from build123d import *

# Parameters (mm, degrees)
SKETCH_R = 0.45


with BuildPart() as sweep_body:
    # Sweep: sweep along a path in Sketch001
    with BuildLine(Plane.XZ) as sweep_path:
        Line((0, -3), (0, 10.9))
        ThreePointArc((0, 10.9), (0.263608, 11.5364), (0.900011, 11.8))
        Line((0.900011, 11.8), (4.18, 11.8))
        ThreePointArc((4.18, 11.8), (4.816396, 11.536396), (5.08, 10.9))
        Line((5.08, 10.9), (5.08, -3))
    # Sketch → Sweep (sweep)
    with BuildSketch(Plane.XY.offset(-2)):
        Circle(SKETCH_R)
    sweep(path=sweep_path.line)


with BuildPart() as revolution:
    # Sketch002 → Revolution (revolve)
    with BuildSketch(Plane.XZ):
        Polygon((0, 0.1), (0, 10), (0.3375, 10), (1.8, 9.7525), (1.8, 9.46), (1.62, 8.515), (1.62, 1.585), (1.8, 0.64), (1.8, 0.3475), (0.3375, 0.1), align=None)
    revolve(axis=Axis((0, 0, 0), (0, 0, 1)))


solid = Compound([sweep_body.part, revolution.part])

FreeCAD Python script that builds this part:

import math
import FreeCAD as App
import Part
import Sketcher
from FreeCAD import Vector


def add_polygon(sketch, points):
    """Adds a closed chain of lines whose ends are joined by coincident constraints."""
    first, n = sketch.GeometryCount, len(points)
    for a, b in zip(points, points[1:] + points[:1]):
        sketch.addGeometry(Part.LineSegment(App.Vector(*a, 0), App.Vector(*b, 0)), False)
    for i in range(n):
        sketch.addConstraint(Sketcher.Constraint("Coincident", first + i, 2, first + (i + 1) % n, 1))

doc = App.newDocument("Part")
body = doc.addObject("PartDesign::Body", "Body")

# Sketch on XY plane
sketch1 = body.newObject("Sketcher::SketchObject", "Sketch")
sketch1.AttachmentSupport = (doc.getObject("XY_Plane"), [""])
sketch1.MapMode = "FlatFace"
sketch1.AttachmentOffset = App.Placement(Vector(0, 0, -2), App.Rotation())
sketch1.addGeometry(Part.Circle(Vector(0, 0, 0), Vector(0, 0, 1), 0.45), False)
sketch1.addConstraint([
    Sketcher.Constraint("Coincident", 0, 3, -1, 1),
    Sketcher.Constraint("Diameter", 0, 0.9),
])

# Sketch on XZ plane
sketch2 = body.newObject("Sketcher::SketchObject", "Sketch001")
sketch2.AttachmentSupport = (doc.getObject("XZ_Plane"), [""])
sketch2.MapMode = "FlatFace"
sketch2.addGeometry([
    Part.LineSegment(Vector(0, -3, 0), Vector(0, 10.9, 0)),  # 0
    Part.ArcOfCircle(Part.Circle(Vector(0.9, 10.9, 0), Vector(0, 0, 1), 0.9), math.radians(90), math.radians(180)),  # 1
    Part.LineSegment(Vector(0.9, 11.8, 0), Vector(4.2, 11.8, 0)),  # 2
    Part.ArcOfCircle(Part.Circle(Vector(4.2, 10.9, 0), Vector(0, 0, 1), 0.9), math.radians(0), math.radians(90)),  # 3
    Part.LineSegment(Vector(5.1, 10.9, 0), Vector(5.1, -3, 0)),  # 4
], False)
sketch2.addConstraint([
    Sketcher.Constraint("Tangent", 0, 2, 1, 2),
    Sketcher.Constraint("Coincident", 1, 1, 2, 1),
    Sketcher.Constraint("Tangent", 2, 2, 3, 2),
    Sketcher.Constraint("Tangent", 3, 1, 4, 1),
    Sketcher.Constraint("Vertical", 0),
    Sketcher.Constraint("Horizontal", 2),
    Sketcher.Constraint("Vertical", 4),
    Sketcher.Constraint("Equal", 1, 3),
    Sketcher.Constraint("PointOnObject", 0, 1, -2),
    Sketcher.Constraint("Horizontal", 0, 1, 4, 2),
    Sketcher.Constraint("Radius", 1, 0.9),
    Sketcher.Constraint("DistanceY", 0, 1, 0, 2, 13.9),
    Sketcher.Constraint("DistanceY", 0, 1, -1, 1, 3.0),
    Sketcher.Constraint("DistanceX", -1, 1, 3, 3, 4.18),
    Sketcher.Constraint("DistanceX", 2, 1, 2, 2, 3.279989),
])
doc.recompute()

additivepipe = body.newObject("PartDesign::AdditivePipe", "AdditivePipe")
additivepipe.Profile = sketch1
additivepipe.Spine = (sketch2, ["Edge1", "Edge2", "Edge3", "Edge4", "Edge5"])
body2 = doc.addObject("PartDesign::Body", "Body001")

# Sketch on XZ plane
sketch3 = body2.newObject("Sketcher::SketchObject", "Sketch002")
sketch3.AttachmentSupport = (doc.getObject("XZ_Plane001"), [""])
sketch3.MapMode = "FlatFace"
add_polygon(sketch3, [(0, 10), (0, 0.1), (0.34, 0.1), (1.8, 0.35), (1.8, 0.64), (1.62, 1.58), (1.62, 8.52), (1.8, 9.46), (1.8, 9.75), (0.34, 10)])  # lines 0-9
sketch3.addConstraint([
    Sketcher.Constraint("Vertical", 0),
    Sketcher.Constraint("Horizontal", 1),
    Sketcher.Constraint("Vertical", 3),
    Sketcher.Constraint("Vertical", 5),
    Sketcher.Constraint("Vertical", 7),
    Sketcher.Constraint("Horizontal", 9),
    Sketcher.Constraint("PointOnObject", 0, 2, -2),
    Sketcher.Constraint("Vertical", 3, 2, 6, 2),
    Sketcher.Constraint("Vertical", 1, 2, 8, 2),
    Sketcher.Constraint("Equal", 3, 7),
    Sketcher.Constraint("Equal", 4, 6),
    Sketcher.Constraint("Equal", 2, 8),
    Sketcher.Constraint("DistanceY", 0, 2, 0, 1, 9.9),
    Sketcher.Constraint("DistanceY", -1, 1, 8, 2, 10.0),
    Sketcher.Constraint("DistanceY", 5, 1, 5, 2, 6.93),
    Sketcher.Constraint("DistanceX", -1, 1, 2, 2, 1.8),
    Sketcher.Constraint("DistanceY", -1, 1, 3, 2, 0.64),
    Sketcher.Constraint("DistanceX", -1, 1, 4, 2, 1.62),
    Sketcher.Constraint("DistanceX", 1, 1, 1, 2, 0.3375),
    Sketcher.Constraint("DistanceY", 3, 1, 3, 2, 0.2925),
])
revolution = body2.newObject("PartDesign::Revolution", "Revolution")
revolution.Profile = sketch3
revolution.ReferenceAxis = (sketch3, ["V_Axis"])
revolution.Angle = 360

doc.recompute()
